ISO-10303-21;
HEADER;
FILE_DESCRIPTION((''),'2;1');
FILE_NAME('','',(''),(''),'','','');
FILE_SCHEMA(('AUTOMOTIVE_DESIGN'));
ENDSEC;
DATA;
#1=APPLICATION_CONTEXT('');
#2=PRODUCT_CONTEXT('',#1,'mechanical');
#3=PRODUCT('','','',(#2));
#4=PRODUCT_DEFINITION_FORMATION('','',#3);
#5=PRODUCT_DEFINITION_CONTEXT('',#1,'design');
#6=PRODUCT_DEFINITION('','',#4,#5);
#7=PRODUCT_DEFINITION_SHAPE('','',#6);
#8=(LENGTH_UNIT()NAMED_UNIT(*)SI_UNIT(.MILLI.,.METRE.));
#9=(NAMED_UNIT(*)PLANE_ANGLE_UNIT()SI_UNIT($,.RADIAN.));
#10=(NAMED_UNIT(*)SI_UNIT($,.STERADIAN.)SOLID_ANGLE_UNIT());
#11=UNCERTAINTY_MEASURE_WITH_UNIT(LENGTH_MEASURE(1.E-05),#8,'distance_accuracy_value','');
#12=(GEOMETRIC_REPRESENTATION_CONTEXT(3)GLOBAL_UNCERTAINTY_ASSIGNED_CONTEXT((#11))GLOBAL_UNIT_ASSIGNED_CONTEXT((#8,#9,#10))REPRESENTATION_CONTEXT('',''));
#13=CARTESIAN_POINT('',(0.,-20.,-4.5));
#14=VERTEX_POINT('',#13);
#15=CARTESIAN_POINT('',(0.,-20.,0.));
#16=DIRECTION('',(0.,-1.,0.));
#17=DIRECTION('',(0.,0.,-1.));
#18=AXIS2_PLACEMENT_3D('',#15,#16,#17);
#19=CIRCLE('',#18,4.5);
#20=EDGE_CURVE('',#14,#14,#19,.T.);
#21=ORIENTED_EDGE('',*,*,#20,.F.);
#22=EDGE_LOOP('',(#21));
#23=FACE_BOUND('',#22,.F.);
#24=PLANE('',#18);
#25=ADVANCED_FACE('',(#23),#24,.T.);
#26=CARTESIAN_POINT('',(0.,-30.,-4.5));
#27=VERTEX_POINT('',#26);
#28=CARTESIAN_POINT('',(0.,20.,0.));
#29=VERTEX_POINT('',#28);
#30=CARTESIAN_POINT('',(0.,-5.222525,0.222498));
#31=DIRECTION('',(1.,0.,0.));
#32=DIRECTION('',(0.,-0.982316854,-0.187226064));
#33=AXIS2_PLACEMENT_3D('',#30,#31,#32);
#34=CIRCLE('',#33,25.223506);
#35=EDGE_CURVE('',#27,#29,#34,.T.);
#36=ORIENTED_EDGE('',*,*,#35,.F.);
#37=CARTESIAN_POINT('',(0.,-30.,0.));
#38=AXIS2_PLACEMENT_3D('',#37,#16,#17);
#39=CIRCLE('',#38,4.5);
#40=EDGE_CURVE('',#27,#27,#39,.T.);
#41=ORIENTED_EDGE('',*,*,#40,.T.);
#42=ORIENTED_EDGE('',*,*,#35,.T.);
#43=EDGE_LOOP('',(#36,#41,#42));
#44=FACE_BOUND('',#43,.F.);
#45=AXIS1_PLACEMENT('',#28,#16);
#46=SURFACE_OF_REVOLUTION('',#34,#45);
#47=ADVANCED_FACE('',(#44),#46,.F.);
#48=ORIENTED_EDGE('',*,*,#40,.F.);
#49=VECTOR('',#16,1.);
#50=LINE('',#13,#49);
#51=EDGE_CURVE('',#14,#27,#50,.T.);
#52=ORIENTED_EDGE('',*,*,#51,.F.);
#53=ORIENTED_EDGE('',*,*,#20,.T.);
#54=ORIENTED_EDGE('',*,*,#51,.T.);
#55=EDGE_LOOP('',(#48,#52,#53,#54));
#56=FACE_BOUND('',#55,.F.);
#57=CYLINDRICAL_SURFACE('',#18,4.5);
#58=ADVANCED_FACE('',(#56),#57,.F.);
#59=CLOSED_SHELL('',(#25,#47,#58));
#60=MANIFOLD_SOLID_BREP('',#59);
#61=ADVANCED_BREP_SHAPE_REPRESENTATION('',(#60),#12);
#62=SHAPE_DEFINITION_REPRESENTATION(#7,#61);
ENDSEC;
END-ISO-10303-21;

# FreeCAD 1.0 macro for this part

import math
import FreeCAD as App
import Part
import Sketcher
from FreeCAD import Vector

doc = App.newDocument("Part")
body = doc.addObject("PartDesign::Body", "Body")

# Sketch on YZ plane
sketch1 = body.newObject("Sketcher::SketchObject", "Sketch")
sketch1.AttachmentSupport = (doc.getObject("YZ_Plane"), [""])
sketch1.MapMode = "FlatFace"
sketch1.addGeometry(Part.LineSegment(Vector(20, 0, 0), Vector(-20, 0, 0)), False)
sketch1.addGeometry(Part.LineSegment(Vector(-20, 0, 0), Vector(-20, -4.5, 0)), False)
sketch1.addGeometry(Part.LineSegment(Vector(-20, -4.5, 0), Vector(-30, -4.5, 0)), False)
sketch1.addGeometry(Part.ArcOfCircle(Part.Circle(Vector(-5.2, 0.2, 0), Vector(0, 0, 1), 25.2), math.radians(-169), math.radians(-1)), False)
sketch1.addConstraint(Sketcher.Constraint("Coincident", 0, 2, 1, 1))
sketch1.addConstraint(Sketcher.Constraint("Coincident", 1, 2, 2, 1))
sketch1.addConstraint(Sketcher.Constraint("Coincident", 2, 2, 3, 1))
sketch1.addConstraint(Sketcher.Constraint("Coincident", 3, 2, 0, 1))
sketch1.addConstraint(Sketcher.Constraint("Horizontal", 0))
sketch1.addConstraint(Sketcher.Constraint("Vertical", 1))
sketch1.addConstraint(Sketcher.Constraint("Horizontal", 2))
sketch1.addConstraint(Sketcher.Constraint("Symmetric", 0, 2, 3, 2, -1, 1))
sketch1.addConstraint(Sketcher.Constraint("DistanceX", 0, 2, 0, 1, 40.0))
sketch1.addConstraint(Sketcher.Constraint("DistanceX", 2, 2, 2, 1, 10.0))
sketch1.addConstraint(Sketcher.Constraint("DistanceY", 1, 2, 1, 1, 4.5))
sketch1.addConstraint(Sketcher.Constraint("Radius", 3, 25.2235))
revolution = body.newObject("PartDesign::Revolution", "Revolution")
revolution.Profile = sketch1
revolution.ReferenceAxis = (sketch1, ["H_Axis"])
revolution.Angle = 360

doc.recompute()
